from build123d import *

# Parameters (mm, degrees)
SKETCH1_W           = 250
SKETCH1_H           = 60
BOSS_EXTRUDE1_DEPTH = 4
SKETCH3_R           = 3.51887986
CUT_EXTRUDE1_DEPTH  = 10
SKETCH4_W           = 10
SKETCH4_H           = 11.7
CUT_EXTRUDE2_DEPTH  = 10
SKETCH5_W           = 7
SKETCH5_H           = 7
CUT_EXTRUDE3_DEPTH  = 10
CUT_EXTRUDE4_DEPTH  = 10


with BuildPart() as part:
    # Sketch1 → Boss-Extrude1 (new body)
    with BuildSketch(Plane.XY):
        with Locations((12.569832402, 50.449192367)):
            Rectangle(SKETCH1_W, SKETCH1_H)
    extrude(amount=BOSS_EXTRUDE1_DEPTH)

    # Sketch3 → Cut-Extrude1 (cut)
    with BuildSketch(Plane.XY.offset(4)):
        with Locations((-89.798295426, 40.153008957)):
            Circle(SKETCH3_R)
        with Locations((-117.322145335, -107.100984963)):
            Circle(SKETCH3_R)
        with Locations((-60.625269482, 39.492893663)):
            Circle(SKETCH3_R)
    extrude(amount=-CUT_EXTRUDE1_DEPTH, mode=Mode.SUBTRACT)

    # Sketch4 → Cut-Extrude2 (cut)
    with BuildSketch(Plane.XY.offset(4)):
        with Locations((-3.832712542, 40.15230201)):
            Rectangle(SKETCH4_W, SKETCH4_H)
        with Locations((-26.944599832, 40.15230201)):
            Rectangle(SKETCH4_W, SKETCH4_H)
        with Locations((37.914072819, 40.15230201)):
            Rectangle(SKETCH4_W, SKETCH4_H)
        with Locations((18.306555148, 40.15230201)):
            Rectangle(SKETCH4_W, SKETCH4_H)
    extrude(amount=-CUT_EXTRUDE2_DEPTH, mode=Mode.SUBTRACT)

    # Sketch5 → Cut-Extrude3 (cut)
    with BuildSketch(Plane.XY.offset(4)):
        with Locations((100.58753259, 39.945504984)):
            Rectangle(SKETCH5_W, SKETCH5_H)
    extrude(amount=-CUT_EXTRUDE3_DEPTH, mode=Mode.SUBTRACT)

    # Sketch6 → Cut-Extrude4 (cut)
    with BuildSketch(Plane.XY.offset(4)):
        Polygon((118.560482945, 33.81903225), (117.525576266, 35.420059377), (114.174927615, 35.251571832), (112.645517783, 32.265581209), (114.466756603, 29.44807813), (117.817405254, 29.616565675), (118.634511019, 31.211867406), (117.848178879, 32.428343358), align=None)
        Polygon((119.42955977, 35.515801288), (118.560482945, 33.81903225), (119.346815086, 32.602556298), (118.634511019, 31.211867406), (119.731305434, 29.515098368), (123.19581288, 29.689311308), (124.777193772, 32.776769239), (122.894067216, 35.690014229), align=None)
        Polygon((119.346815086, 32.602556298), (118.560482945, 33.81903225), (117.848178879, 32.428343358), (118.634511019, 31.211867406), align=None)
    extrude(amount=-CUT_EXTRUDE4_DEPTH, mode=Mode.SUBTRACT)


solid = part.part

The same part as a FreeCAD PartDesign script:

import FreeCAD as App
import Part
import Sketcher
from FreeCAD import Vector


def add_polygon(sketch, points):
    """Adds a closed chain of lines whose ends are joined by coincident constraints."""
    first, n = sketch.GeometryCount, len(points)
    for a, b in zip(points, points[1:] + points[:1]):
        sketch.addGeometry(Part.LineSegment(App.Vector(*a, 0), App.Vector(*b, 0)), False)
    for i in range(n):
        sketch.addConstraint(Sketcher.Constraint("Coincident", first + i, 2, first + (i + 1) % n, 1))

doc = App.newDocument("Part")
body = doc.addObject("PartDesign::Body", "Body")

sketch1 = body.newObject("Sketcher::SketchObject", "Sketch")
sketch1.AttachmentSupport = (doc.getObject("XY_Plane"), [""])
sketch1.MapMode = "FlatFace"
add_polygon(sketch1, [(-112.430168, 80.449192), (-112.430168, 20.449192), (137.569832, 20.449192), (137.569832, 80.449192)])
sketch1.addConstraint(Sketcher.Constraint("Vertical", 0))
sketch1.addConstraint(Sketcher.Constraint("Horizontal", 1))
sketch1.addConstraint(Sketcher.Constraint("Vertical", 2))
sketch1.addConstraint(Sketcher.Constraint("Horizontal", 3))
sketch1.addConstraint(Sketcher.Constraint("DistanceX", 1, 1, 1, 2, 250.0))
sketch1.addConstraint(Sketcher.Constraint("DistanceY", 0, 2, 0, 1, 60.0))
sketch1.addConstraint(Sketcher.Constraint("DistanceX", 0, 2, -1, 1, 112.430168))
sketch1.addConstraint(Sketcher.Constraint("DistanceY", -1, 1, 0, 2, 20.449192))
pad1 = body.newObject("PartDesign::Pad", "Pad")
pad1.Profile = sketch1
pad1.Length = 4

sketch2 = body.newObject("Sketcher::SketchObject", "Sketch001")
sketch2.AttachmentSupport = (doc.getObject("XY_Plane"), [""])
sketch2.MapMode = "FlatFace"
sketch2.AttachmentOffset = App.Placement(Vector(0, 0, 4), App.Rotation())
sketch2.addGeometry(Part.Circle(Vector(-89.798295, 40.153009, 0), Vector(0, 0, 1), 3.51888), False)
sketch2.addGeometry(Part.Circle(Vector(-117.322145, -107.100985, 0), Vector(0, 0, 1), 3.51888), False)
sketch2.addGeometry(Part.Circle(Vector(-60.625269, 39.492894, 0), Vector(0, 0, 1), 3.51888), False)
sketch2.addConstraint(Sketcher.Constraint("Equal", 0, 1))
sketch2.addConstraint(Sketcher.Constraint("Equal", 1, 2))
sketch2.addConstraint(Sketcher.Constraint("Diameter", 0, 7.03776))
sketch2.addConstraint(Sketcher.Constraint("DistanceY", -1, 1, 0, 3, 40.153009))
sketch2.addConstraint(Sketcher.Constraint("DistanceX", 2, 3, -1, 1, 60.625269))
sketch2.addConstraint(Sketcher.Constraint("DistanceX", 1, 3, 0, 3, 27.52385))
sketch2.addConstraint(Sketcher.Constraint("DistanceY", 1, 3, 2, 3, 146.593879))
sketch2.addConstraint(Sketcher.Constraint("DistanceX", 0, 3, -1, 1, 89.798295))
sketch2.addConstraint(Sketcher.Constraint("DistanceY", 1, 3, -1, 1, 107.100985))
pocket1 = body.newObject("PartDesign::Pocket", "Pocket")
pocket1.Profile = sketch2
pocket1.Length = 10

sketch3 = body.newObject("Sketcher::SketchObject", "Sketch002")
sketch3.AttachmentSupport = (doc.getObject("XY_Plane"), [""])
sketch3.MapMode = "FlatFace"
sketch3.AttachmentOffset = App.Placement(Vector(0, 0, 4), App.Rotation())
add_polygon(sketch3, [(-8.832713, 46.002302), (-8.832713, 34.302302), (1.167287, 34.302302), (1.167287, 46.002302)])
add_polygon(sketch3, [(-31.9446, 46.002302), (-31.9446, 34.302302), (-21.9446, 34.302302), (-21.9446, 46.002302)])
add_polygon(sketch3, [(32.914073, 46.002302), (32.914073, 34.302302), (42.914073, 34.302302), (42.914073, 46.002302)])
add_polygon(sketch3, [(13.306555, 46.002302), (13.306555, 34.302302), (23.306555, 34.302302), (23.306555, 46.002302)])
sketch3.addConstraint(Sketcher.Constraint("Vertical", 0))
sketch3.addConstraint(Sketcher.Constraint("Horizontal", 1))
sketch3.addConstraint(Sketcher.Constraint("Vertical", 2))
sketch3.addConstraint(Sketcher.Constraint("Horizontal", 3))
sketch3.addConstraint(Sketcher.Constraint("Vertical", 4))
sketch3.addConstraint(Sketcher.Constraint("Horizontal", 5))
sketch3.addConstraint(Sketcher.Constraint("Vertical", 6))
sketch3.addConstraint(Sketcher.Constraint("Horizontal", 7))
sketch3.addConstraint(Sketcher.Constraint("Vertical", 8))
sketch3.addConstraint(Sketcher.Constraint("Horizontal", 9))
sketch3.addConstraint(Sketcher.Constraint("Vertical", 10))
sketch3.addConstraint(Sketcher.Constraint("Horizontal", 11))
sketch3.addConstraint(Sketcher.Constraint("Vertical", 12))
sketch3.addConstraint(Sketcher.Constraint("Horizontal", 13))
sketch3.addConstraint(Sketcher.Constraint("Vertical", 14))
sketch3.addConstraint(Sketcher.Constraint("Horizontal", 15))
sketch3.addConstraint(Sketcher.Constraint("Horizontal", 1, 2, 4, 2))
sketch3.addConstraint(Sketcher.Constraint("Horizontal", 3, 2, 6, 2))
sketch3.addConstraint(Sketcher.Constraint("Horizontal", 5, 2, 8, 2))
sketch3.addConstraint(Sketcher.Constraint("Horizontal", 7, 2, 10, 2))
sketch3.addConstraint(Sketcher.Constraint("Horizontal", 9, 2, 12, 2))
sketch3.addConstraint(Sketcher.Constraint("Horizontal", 11, 2, 14, 2))
sketch3.addConstraint(Sketcher.Constraint("Equal", 3, 5))
sketch3.addConstraint(Sketcher.Constraint("Equal", 7, 9))
sketch3.addConstraint(Sketcher.Constraint("Equal", 11, 13))
sketch3.addConstraint(Sketcher.Constraint("DistanceX", 1, 1, 1, 2, 10.0))
sketch3.addConstraint(Sketcher.Constraint("DistanceY", 0, 2, 0, 1, 11.7))
sketch3.addConstraint(Sketcher.Constraint("DistanceX", 4, 2, -1, 1, 31.9446))
sketch3.addConstraint(Sketcher.Constraint("DistanceX", 0, 2, -1, 1, 8.832713))
sketch3.addConstraint(Sketcher.Constraint("DistanceY", -1, 1, 0, 2, 34.302302))
sketch3.addConstraint(Sketcher.Constraint("DistanceX", -1, 1, 8, 2, 32.914073))
sketch3.addConstraint(Sketcher.Constraint("DistanceX", -1, 1, 12, 2, 13.306555))
pocket2 = body.newObject("PartDesign::Pocket", "Pocket001")
pocket2.Profile = sketch3
pocket2.Length = 10

sketch4 = body.newObject("Sketcher::SketchObject", "Sketch003")
sketch4.AttachmentSupport = (doc.getObject("XY_Plane"), [""])
sketch4.MapMode = "FlatFace"
sketch4.AttachmentOffset = App.Placement(Vector(0, 0, 4), App.Rotation())
add_polygon(sketch4, [(97.087533, 43.445505), (97.087533, 36.445505), (104.087533, 36.445505), (104.087533, 43.445505)])
sketch4.addConstraint(Sketcher.Constraint("Vertical", 0))
sketch4.addConstraint(Sketcher.Constraint("Horizontal", 1))
sketch4.addConstraint(Sketcher.Constraint("Vertical", 2))
sketch4.addConstraint(Sketcher.Constraint("Horizontal", 3))
sketch4.addConstraint(Sketcher.Constraint("Equal", 3, 0))
sketch4.addConstraint(Sketcher.Constraint("DistanceX", 1, 1, 1, 2, 7.0))
sketch4.addConstraint(Sketcher.Constraint("DistanceX", -1, 1, 0, 2, 97.087533))
sketch4.addConstraint(Sketcher.Constraint("DistanceY", -1, 1, 0, 2, 36.445505))
pocket3 = body.newObject("PartDesign::Pocket", "Pocket002")
pocket3.Profile = sketch4
pocket3.Length = 10

sketch5 = body.newObject("Sketcher::SketchObject", "Sketch004")
sketch5.AttachmentSupport = (doc.getObject("XY_Plane"), [""])
sketch5.MapMode = "FlatFace"
sketch5.AttachmentOffset = App.Placement(Vector(0, 0, 4), App.Rotation())
add_polygon(sketch5, [(118.560483, 33.819032), (117.525576, 35.420059), (114.174928, 35.251572), (112.645518, 32.265581), (114.466757, 29.448078), (117.817405, 29.616566), (118.634511, 31.211867), (119.731305, 29.515098), (123.195813, 29.689311), (124.777194, 32.776769), (122.894067, 35.690014), (119.42956, 35.515801)])
sketch5.addConstraint(Sketcher.Constraint("Parallel", 0, 3))
sketch5.addConstraint(Sketcher.Constraint("Parallel", 1, 4))
sketch5.addConstraint(Sketcher.Constraint("Parallel", 2, 5))
sketch5.addConstraint(Sketcher.Constraint("Parallel", 3, 6))
sketch5.addConstraint(Sketcher.Constraint("Parallel", 4, 7))
sketch5.addConstraint(Sketcher.Constraint("Parallel", 5, 8))
sketch5.addConstraint(Sketcher.Constraint("Parallel", 6, 9))
sketch5.addConstraint(Sketcher.Constraint("Parallel", 7, 10))
sketch5.addConstraint(Sketcher.Constraint("Parallel", 8, 11))
sketch5.addConstraint(Sketcher.Constraint("Equal", 1, 2))
sketch5.addConstraint(Sketcher.Constraint("Equal", 2, 3))
sketch5.addConstraint(Sketcher.Constraint("Equal", 3, 4))
sketch5.addConstraint(Sketcher.Constraint("Equal", 7, 8))
sketch5.addConstraint(Sketcher.Constraint("Equal", 8, 9))
sketch5.addConstraint(Sketcher.Constraint("Equal", 9, 10))
sketch5.addConstraint(Sketcher.Constraint("Equal", 0, 11))
sketch5.addConstraint(Sketcher.Constraint("DistanceY", -1, 1, 6, 2, 29.515098))
sketch5.addConstraint(Sketcher.Constraint("DistanceY", -1, 1, 10, 2, 35.515801))
sketch5.addConstraint(Sketcher.Constraint("DistanceY", 4, 2, 5, 2, 1.595302))
sketch5.addConstraint(Sketcher.Constraint("DistanceX", 4, 2, 6, 2, 1.9139))
sketch5.addConstraint(Sketcher.Constraint("DistanceX", 5, 2, 7, 2, 4.561302))
sketch5.addConstraint(Sketcher.Constraint("DistanceY", 5, 2, 8, 2, 1.564902))
sketch5.addConstraint(Sketcher.Constraint("Distance", 0, 1.906389))
sketch5.addConstraint(Sketcher.Constraint("DistanceX", -1, 1, 5, 2, 118.634511))
pocket4 = body.newObject("PartDesign::Pocket", "Pocket003")
pocket4.Profile = sketch5
pocket4.Length = 10

doc.recompute()
